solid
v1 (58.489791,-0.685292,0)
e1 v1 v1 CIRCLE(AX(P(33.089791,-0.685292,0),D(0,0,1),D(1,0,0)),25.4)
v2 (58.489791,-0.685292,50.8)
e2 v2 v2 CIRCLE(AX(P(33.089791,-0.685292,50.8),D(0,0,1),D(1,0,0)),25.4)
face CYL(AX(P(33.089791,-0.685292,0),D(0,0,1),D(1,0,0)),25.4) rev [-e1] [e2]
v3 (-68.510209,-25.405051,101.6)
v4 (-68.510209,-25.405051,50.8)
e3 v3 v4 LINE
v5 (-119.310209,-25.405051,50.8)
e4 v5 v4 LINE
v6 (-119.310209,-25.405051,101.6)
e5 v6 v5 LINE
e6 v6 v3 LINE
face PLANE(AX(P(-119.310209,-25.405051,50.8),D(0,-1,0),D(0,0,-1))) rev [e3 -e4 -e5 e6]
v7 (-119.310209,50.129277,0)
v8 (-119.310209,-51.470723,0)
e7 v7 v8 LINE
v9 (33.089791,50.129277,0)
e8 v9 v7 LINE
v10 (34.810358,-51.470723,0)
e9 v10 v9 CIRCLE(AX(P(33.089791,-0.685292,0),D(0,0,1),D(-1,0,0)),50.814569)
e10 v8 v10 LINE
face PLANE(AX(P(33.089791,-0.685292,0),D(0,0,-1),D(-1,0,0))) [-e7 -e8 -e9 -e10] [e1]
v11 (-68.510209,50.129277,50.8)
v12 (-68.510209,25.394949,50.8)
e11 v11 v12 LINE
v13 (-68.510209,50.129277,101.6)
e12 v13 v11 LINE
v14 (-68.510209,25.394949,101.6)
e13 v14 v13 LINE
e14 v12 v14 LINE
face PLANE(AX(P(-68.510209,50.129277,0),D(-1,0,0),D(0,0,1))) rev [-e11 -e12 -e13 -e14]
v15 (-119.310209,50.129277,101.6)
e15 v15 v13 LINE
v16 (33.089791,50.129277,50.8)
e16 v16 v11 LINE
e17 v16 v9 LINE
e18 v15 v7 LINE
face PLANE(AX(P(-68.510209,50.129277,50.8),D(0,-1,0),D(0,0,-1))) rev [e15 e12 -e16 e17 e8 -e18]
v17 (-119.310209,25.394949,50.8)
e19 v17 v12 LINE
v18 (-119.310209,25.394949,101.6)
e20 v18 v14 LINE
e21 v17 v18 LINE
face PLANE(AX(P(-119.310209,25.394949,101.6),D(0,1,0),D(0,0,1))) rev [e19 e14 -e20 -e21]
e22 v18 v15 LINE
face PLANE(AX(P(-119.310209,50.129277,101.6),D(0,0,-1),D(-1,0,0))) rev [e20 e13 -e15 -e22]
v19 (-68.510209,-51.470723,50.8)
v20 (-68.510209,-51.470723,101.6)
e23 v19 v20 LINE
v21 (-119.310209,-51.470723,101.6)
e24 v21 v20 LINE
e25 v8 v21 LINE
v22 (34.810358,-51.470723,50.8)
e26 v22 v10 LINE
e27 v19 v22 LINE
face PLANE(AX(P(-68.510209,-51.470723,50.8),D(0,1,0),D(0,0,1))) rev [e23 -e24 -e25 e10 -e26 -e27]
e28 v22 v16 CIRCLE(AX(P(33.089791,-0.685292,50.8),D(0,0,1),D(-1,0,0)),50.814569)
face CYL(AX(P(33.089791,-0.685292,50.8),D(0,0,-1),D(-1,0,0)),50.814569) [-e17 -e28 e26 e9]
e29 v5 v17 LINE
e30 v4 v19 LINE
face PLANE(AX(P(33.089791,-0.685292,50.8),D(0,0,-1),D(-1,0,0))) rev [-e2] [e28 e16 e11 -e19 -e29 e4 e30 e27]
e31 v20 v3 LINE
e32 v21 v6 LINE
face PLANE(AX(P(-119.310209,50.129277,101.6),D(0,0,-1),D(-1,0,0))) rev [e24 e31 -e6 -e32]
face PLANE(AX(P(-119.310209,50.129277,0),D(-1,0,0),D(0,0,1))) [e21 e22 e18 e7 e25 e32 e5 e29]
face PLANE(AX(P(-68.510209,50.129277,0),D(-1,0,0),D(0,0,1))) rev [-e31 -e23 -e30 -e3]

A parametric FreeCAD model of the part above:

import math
import FreeCAD as App
import Part
import Sketcher

V = App.Vector
Q = App.Units.Quantity


def add_polygon(sketch, points):
    """Adds a closed chain of lines whose ends are joined by coincident constraints."""
    first, n = sketch.GeometryCount, len(points)
    for a, b in zip(points, points[1:] + points[:1]):
        sketch.addGeometry(Part.LineSegment(App.Vector(*a, 0), App.Vector(*b, 0)), False)
    for i in range(n):
        sketch.addConstraint(Sketcher.Constraint("Coincident", first + i, 2, first + (i + 1) % n, 1))

doc = App.newDocument("Part")
body = doc.addObject("PartDesign::Body", "Body")

# Sketch on XY plane
sketch1 = body.newObject("Sketcher::SketchObject", "Sketch")
sketch1.AttachmentSupport = (doc.getObject("XY_Plane"), [""])
sketch1.MapMode = "FlatFace"
sketch1.addGeometry(Part.LineSegment(V(33.089791, 50.129277, 0), V(-68.510209, 50.129277, 0)), False)
sketch1.addGeometry(Part.LineSegment(V(-68.510209, 50.129277, 0), V(-68.510209, -51.470723, 0)), False)
sketch1.addGeometry(Part.LineSegment(V(-68.510209, -51.470723, 0), V(34.810358, -51.470723, 0)), False)
sketch1.addGeometry(Part.ArcOfCircle(Part.Circle(V(33.089791, -0.685292, 0), V(0, 0, 1), 50.814569), math.radians(-88.05961), math.radians(90)), False)
sketch1.addConstraint(Sketcher.Constraint("Coincident", 0, 2, 1, 1))
sketch1.addConstraint(Sketcher.Constraint("Coincident", 1, 2, 2, 1))
sketch1.addConstraint(Sketcher.Constraint("Coincident", 2, 2, 3, 1))
sketch1.addConstraint(Sketcher.Constraint("Tangent", 3, 2, 0, 1))
sketch1.addConstraint(Sketcher.Constraint("Horizontal", 0))
sketch1.addConstraint(Sketcher.Constraint("Vertical", 1))
sketch1.addConstraint(Sketcher.Constraint("Horizontal", 2))
sketch1.addConstraint(Sketcher.Constraint("Equal", 0, 1))
sketch1.addConstraint(Sketcher.Constraint("DistanceX", 0, 2, 0, 1, Q("4 in")))
sketch1.addConstraint(Sketcher.Constraint("Radius", 3, 50.814569))
sketch1.addConstraint(Sketcher.Constraint("DistanceX", -1, 1, 3, 3, 33.089791))
sketch1.addConstraint(Sketcher.Constraint("DistanceY", 3, 3, -1, 1, 0.685292))
pad1 = body.newObject("PartDesign::Pad", "Pad")
pad1.Profile = sketch1
pad1.Length = Q("2 in")

# Sketch on YZ plane
sketch2 = body.newObject("Sketcher::SketchObject", "Sketch001")
sketch2.AttachmentSupport = (doc.getObject("YZ_Plane"), [""])
sketch2.MapMode = "FlatFace"
sketch2.AttachmentOffset = App.Placement(V(0, 0, -68.510209), App.Rotation())
add_polygon(sketch2, [(-51, 102), (50, 102), (50, 0), (-51, 0)])  # lines 0-3
sketch2.addConstraint(Sketcher.Constraint("Horizontal", 0))
sketch2.addConstraint(Sketcher.Constraint("Vertical", 1))
sketch2.addConstraint(Sketcher.Constraint("Horizontal", 2))
sketch2.addConstraint(Sketcher.Constraint("Vertical", 3))
sketch2.addConstraint(Sketcher.Constraint("PointOnObject", 1, 2, -1))
sketch2.addConstraint(Sketcher.Constraint("Equal", 2, 1))
sketch2.addConstraint(Sketcher.Constraint("DistanceX", 0, 1, 0, 2, Q("4 in")))
sketch2.addConstraint(Sketcher.Constraint("DistanceX", -1, 1, 0, 2, 50.129277))
pad2 = body.newObject("PartDesign::Pad", "Pad001")
pad2.Profile = sketch2
pad2.Length = Q("2 in")
pad2.Reversed = True

# Sketch on YZ plane
sketch3 = body.newObject("Sketcher::SketchObject", "Sketch002")
sketch3.AttachmentSupport = (doc.getObject("YZ_Plane"), [""])
sketch3.MapMode = "FlatFace"
sketch3.AttachmentOffset = App.Placement(V(0, 0, -68.510209), App.Rotation())
add_polygon(sketch3, [(25, 102), (-25, 102), (-25, 51), (25, 51)])  # lines 0-3
sketch3.addConstraint(Sketcher.Constraint("Horizontal", 0))
sketch3.addConstraint(Sketcher.Constraint("Vertical", 1))
sketch3.addConstraint(Sketcher.Constraint("Horizontal", 2))
sketch3.addConstraint(Sketcher.Constraint("Vertical", 3))
sketch3.addConstraint(Sketcher.Constraint("Equal", 2, 1))
sketch3.addConstraint(Sketcher.Constraint("DistanceX", 0, 2, 0, 1, Q("2 in")))
sketch3.addConstraint(Sketcher.Constraint("DistanceY", -1, 1, 0, 2, Q("4 in")))
sketch3.addConstraint(Sketcher.Constraint("DistanceX", 0, 2, -1, 1, 25.405051))
pocket1 = body.newObject("PartDesign::Pocket", "Pocket")
pocket1.Profile = sketch3
pocket1.Length = Q("2 in")

# Sketch on XY plane
sketch4 = body.newObject("Sketcher::SketchObject", "Sketch003")
sketch4.AttachmentSupport = (doc.getObject("XY_Plane"), [""])
sketch4.MapMode = "FlatFace"
sketch4.AttachmentOffset = App.Placement(V(0, 0, 2 * 25.4), App.Rotation())
sketch4.addGeometry(Part.Circle(V(33, -1, 0), V(0, 0, 1), 25), False)
sketch4.addConstraint(Sketcher.Constraint("Diameter", 0, Q("2 in")))
sketch4.addConstraint(Sketcher.Constraint("DistanceX", -1, 1, 0, 3, 33.089791))
sketch4.addConstraint(Sketcher.Constraint("DistanceY", 0, 3, -1, 1, 0.685292))
pocket2 = body.newObject("PartDesign::Pocket", "Pocket001")
pocket2.Profile = sketch4
pocket2.Type = "ThroughAll"

doc.recompute()
